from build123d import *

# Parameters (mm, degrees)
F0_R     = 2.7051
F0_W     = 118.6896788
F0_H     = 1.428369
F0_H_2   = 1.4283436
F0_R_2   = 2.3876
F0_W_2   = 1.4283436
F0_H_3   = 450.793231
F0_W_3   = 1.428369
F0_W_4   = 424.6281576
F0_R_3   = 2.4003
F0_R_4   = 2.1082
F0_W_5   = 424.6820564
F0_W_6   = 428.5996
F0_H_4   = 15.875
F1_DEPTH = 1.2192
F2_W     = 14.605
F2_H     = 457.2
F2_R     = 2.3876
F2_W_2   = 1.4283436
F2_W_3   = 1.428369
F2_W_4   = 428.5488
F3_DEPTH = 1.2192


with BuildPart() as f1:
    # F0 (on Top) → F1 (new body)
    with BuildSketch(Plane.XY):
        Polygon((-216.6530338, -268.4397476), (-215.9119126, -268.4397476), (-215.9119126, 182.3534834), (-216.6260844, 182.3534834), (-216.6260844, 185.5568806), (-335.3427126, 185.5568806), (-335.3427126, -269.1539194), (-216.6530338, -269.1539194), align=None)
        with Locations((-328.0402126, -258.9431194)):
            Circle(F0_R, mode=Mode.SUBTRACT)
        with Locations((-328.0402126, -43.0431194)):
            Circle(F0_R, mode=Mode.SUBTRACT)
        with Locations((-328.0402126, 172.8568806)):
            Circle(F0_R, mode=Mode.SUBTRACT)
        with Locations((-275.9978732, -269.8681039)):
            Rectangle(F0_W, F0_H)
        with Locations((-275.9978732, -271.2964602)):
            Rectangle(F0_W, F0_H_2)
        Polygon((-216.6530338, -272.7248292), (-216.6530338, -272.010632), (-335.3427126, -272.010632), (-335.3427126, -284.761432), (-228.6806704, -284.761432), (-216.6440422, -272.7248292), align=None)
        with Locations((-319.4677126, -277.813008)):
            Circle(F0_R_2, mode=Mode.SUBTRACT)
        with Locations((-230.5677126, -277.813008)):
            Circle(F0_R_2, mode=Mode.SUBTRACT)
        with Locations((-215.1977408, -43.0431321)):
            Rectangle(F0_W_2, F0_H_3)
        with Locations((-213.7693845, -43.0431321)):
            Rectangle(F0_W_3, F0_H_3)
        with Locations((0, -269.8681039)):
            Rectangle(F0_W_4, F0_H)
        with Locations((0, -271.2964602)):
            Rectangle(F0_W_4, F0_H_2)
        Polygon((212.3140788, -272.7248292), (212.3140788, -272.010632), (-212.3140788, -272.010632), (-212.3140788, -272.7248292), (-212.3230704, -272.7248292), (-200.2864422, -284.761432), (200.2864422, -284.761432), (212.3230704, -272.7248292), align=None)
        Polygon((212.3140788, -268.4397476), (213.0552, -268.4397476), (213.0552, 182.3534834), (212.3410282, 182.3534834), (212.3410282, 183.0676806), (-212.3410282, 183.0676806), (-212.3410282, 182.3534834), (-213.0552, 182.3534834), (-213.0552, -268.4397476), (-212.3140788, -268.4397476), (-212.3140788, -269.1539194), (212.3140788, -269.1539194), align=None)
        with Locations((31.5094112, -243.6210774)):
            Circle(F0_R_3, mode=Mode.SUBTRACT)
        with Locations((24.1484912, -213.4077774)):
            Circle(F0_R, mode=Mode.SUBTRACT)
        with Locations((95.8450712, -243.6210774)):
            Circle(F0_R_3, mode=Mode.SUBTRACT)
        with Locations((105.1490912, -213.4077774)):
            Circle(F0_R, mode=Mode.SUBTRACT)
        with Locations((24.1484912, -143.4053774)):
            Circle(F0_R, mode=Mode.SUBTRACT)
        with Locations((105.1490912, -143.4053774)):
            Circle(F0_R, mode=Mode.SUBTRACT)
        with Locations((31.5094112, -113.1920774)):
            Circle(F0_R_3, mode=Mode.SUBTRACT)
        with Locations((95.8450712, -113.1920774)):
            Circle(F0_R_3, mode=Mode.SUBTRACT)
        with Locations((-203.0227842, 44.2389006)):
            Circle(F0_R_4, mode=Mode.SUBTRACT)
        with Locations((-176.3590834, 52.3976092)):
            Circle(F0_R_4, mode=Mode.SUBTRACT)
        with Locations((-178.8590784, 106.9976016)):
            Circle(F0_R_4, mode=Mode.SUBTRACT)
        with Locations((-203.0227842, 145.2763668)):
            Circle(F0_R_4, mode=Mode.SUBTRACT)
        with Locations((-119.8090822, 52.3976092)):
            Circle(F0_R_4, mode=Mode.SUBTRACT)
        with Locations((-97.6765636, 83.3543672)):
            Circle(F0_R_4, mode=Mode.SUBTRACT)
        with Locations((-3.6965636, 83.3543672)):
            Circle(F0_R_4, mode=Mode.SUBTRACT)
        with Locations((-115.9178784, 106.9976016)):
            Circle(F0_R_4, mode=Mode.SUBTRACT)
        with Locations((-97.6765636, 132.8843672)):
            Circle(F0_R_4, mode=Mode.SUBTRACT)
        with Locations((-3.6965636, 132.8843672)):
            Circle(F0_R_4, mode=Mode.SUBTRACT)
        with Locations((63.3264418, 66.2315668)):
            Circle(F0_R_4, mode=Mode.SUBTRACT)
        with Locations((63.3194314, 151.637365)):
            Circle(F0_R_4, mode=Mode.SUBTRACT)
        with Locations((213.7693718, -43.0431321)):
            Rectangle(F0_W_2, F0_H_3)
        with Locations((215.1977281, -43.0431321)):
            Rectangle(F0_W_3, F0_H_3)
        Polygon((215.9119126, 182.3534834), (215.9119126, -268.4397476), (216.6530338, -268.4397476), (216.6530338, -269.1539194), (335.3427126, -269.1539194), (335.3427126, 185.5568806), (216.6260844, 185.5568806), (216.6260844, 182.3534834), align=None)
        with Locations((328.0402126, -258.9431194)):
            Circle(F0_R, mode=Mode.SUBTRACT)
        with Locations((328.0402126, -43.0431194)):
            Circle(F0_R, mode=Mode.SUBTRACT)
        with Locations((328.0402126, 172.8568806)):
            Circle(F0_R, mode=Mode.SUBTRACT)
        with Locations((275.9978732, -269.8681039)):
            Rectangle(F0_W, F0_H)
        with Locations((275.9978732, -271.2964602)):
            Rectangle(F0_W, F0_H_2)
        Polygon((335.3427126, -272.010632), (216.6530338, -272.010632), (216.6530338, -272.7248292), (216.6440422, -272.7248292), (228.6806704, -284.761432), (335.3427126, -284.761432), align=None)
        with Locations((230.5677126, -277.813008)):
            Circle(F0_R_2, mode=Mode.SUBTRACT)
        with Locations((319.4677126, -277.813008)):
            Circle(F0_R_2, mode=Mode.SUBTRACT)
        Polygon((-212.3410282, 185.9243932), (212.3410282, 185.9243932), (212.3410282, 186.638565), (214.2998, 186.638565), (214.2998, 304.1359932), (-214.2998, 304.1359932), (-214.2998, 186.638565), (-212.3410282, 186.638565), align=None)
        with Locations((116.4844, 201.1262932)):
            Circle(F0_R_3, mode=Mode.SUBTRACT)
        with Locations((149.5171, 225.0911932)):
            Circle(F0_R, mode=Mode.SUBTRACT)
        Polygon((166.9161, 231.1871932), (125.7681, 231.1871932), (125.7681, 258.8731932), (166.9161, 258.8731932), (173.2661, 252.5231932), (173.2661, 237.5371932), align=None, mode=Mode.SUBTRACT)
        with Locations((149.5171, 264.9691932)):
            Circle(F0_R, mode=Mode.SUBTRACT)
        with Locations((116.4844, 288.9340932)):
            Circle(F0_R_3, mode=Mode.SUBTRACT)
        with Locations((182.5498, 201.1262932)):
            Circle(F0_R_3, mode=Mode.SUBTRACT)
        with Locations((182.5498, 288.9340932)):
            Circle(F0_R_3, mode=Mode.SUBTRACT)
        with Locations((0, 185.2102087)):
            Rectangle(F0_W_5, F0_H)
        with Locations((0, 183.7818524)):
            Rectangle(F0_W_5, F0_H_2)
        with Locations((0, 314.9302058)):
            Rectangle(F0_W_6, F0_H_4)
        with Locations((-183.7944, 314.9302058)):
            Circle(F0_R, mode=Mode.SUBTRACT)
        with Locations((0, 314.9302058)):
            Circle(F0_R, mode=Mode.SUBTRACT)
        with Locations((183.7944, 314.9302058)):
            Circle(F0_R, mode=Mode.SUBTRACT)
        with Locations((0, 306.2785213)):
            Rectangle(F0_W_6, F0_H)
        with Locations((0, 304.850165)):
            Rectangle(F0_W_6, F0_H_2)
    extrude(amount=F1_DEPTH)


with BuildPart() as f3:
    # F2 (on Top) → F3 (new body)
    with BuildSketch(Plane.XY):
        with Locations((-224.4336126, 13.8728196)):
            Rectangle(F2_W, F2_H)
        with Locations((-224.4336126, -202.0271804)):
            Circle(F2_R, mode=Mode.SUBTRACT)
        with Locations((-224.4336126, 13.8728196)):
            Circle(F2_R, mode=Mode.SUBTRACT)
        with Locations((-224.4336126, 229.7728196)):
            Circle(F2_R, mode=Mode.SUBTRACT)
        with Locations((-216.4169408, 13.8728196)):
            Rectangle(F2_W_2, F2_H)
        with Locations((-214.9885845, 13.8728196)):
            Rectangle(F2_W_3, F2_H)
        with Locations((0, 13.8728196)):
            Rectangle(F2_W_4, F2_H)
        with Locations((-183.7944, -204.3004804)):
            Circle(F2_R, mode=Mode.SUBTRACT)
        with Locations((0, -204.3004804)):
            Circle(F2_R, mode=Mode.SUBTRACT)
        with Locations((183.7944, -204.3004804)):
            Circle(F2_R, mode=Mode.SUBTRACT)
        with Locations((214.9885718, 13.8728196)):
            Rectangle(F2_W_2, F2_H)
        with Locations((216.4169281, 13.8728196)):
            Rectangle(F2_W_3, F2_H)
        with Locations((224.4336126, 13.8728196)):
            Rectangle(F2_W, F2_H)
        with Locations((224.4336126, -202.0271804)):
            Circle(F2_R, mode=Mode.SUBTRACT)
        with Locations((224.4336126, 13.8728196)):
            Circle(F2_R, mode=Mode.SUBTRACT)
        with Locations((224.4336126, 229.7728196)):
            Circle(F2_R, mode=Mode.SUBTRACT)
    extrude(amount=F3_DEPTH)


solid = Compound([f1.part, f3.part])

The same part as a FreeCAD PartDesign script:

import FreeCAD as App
import Part
import Sketcher
from FreeCAD import Vector
Q = App.Units.Quantity


def add_polygon(sketch, points):
    """Adds a closed chain of lines whose ends are joined by coincident constraints."""
    first, n = sketch.GeometryCount, len(points)
    for a, b in zip(points, points[1:] + points[:1]):
        sketch.addGeometry(Part.LineSegment(App.Vector(*a, 0), App.Vector(*b, 0)), False)
    for i in range(n):
        sketch.addConstraint(Sketcher.Constraint("Coincident", first + i, 2, first + (i + 1) % n, 1))

doc = App.newDocument("Part")
body = doc.addObject("PartDesign::Body", "Body")

# Sketch on XY plane
sketch1 = body.newObject("Sketcher::SketchObject", "Sketch")
sketch1.AttachmentSupport = (doc.getObject("XY_Plane"), [""])
sketch1.MapMode = "FlatFace"
add_polygon(sketch1, [(-216.653034, -268.439748), (-212.314079, -268.439748), (-212.314079, -272.724829), (-212.32307, -272.724829), (-200.286442, -284.761432), (200.286442, -284.761432), (212.32307, -272.724829), (212.314079, -272.724829), (212.314079, -268.439748), (216.653034, -268.439748), (216.653034, -272.724829), (216.644042, -272.724829), (228.68067, -284.761432), (335.342713, -284.761432), (335.342713, 185.556881), (216.626084, 185.556881), (216.626084, 182.353483), (212.341028, 182.353483), (212.341028, 186.638565), (214.2998, 186.638565), (214.2998, 322.867706), (-214.2998, 322.867706), (-214.2998, 186.638565), (-212.341028, 186.638565), (-212.341028, 182.353483), (-216.626084, 182.353483), (-216.626084, 185.556881), (-335.342713, 185.556881), (-335.342713, -284.761432), (-228.68067, -284.761432), (-216.644042, -272.724829), (-216.653034, -272.724829)])  # lines 0-31
sketch1.addGeometry(Part.Circle(Vector(-319.467713, -277.813008, 0), Vector(0, 0, 1), 2.3876), False)  # 32
sketch1.addGeometry(Part.Circle(Vector(-328.040213, -258.943119, 0), Vector(0, 0, 1), 2.7051), False)  # 33
sketch1.addGeometry(Part.Circle(Vector(-230.567713, -277.813008, 0), Vector(0, 0, 1), 2.3876), False)  # 34
sketch1.addGeometry(Part.Circle(Vector(31.509411, -243.621077, 0), Vector(0, 0, 1), 2.4003), False)  # 35
sketch1.addGeometry(Part.Circle(Vector(95.845071, -243.621077, 0), Vector(0, 0, 1), 2.4003), False)  # 36
sketch1.addGeometry(Part.Circle(Vector(24.148491, -213.407777, 0), Vector(0, 0, 1), 2.7051), False)  # 37
sketch1.addGeometry(Part.Circle(Vector(105.149091, -213.407777, 0), Vector(0, 0, 1), 2.7051), False)  # 38
sketch1.addGeometry(Part.Circle(Vector(230.567713, -277.813008, 0), Vector(0, 0, 1), 2.3876), False)  # 39
sketch1.addGeometry(Part.Circle(Vector(319.467713, -277.813008, 0), Vector(0, 0, 1), 2.3876), False)  # 40
sketch1.addGeometry(Part.Circle(Vector(328.040213, -258.943119, 0), Vector(0, 0, 1), 2.7051), False)  # 41
sketch1.addGeometry(Part.Circle(Vector(24.148491, -143.405377, 0), Vector(0, 0, 1), 2.7051), False)  # 42
sketch1.addGeometry(Part.Circle(Vector(31.509411, -113.192077, 0), Vector(0, 0, 1), 2.4003), False)  # 43
sketch1.addGeometry(Part.Circle(Vector(105.149091, -143.405377, 0), Vector(0, 0, 1), 2.7051), False)  # 44
sketch1.addGeometry(Part.Circle(Vector(95.845071, -113.192077, 0), Vector(0, 0, 1), 2.4003), False)  # 45
sketch1.addGeometry(Part.Circle(Vector(-328.040213, -43.043119, 0), Vector(0, 0, 1), 2.7051), False)  # 46
sketch1.addGeometry(Part.Circle(Vector(-203.022784, 44.238901, 0), Vector(0, 0, 1), 2.1082), False)  # 47
sketch1.addGeometry(Part.Circle(Vector(-176.359083, 52.397609, 0), Vector(0, 0, 1), 2.1082), False)  # 48
sketch1.addGeometry(Part.Circle(Vector(-119.809082, 52.397609, 0), Vector(0, 0, 1), 2.1082), False)  # 49
sketch1.addGeometry(Part.Circle(Vector(-178.859078, 106.997602, 0), Vector(0, 0, 1), 2.1082), False)  # 50
sketch1.addGeometry(Part.Circle(Vector(-328.040213, 172.856881, 0), Vector(0, 0, 1), 2.7051), False)  # 51
sketch1.addGeometry(Part.Circle(Vector(-203.022784, 145.276367, 0), Vector(0, 0, 1), 2.1082), False)  # 52
sketch1.addGeometry(Part.Circle(Vector(-97.676564, 83.354367, 0), Vector(0, 0, 1), 2.1082), False)  # 53
sketch1.addGeometry(Part.Circle(Vector(-115.917878, 106.997602, 0), Vector(0, 0, 1), 2.1082), False)  # 54
sketch1.addGeometry(Part.Circle(Vector(-3.696564, 83.354367, 0), Vector(0, 0, 1), 2.1082), False)  # 55
sketch1.addGeometry(Part.Circle(Vector(-97.676564, 132.884367, 0), Vector(0, 0, 1), 2.1082), False)  # 56
sketch1.addGeometry(Part.Circle(Vector(-3.696564, 132.884367, 0), Vector(0, 0, 1), 2.1082), False)  # 57
sketch1.addGeometry(Part.Circle(Vector(328.040213, -43.043119, 0), Vector(0, 0, 1), 2.7051), False)  # 58
sketch1.addGeometry(Part.Circle(Vector(63.326442, 66.231567, 0), Vector(0, 0, 1), 2.1082), False)  # 59
sketch1.addGeometry(Part.Circle(Vector(63.319431, 151.637365, 0), Vector(0, 0, 1), 2.1082), False)  # 60
sketch1.addGeometry(Part.Circle(Vector(328.040213, 172.856881, 0), Vector(0, 0, 1), 2.7051), False)  # 61
sketch1.addGeometry(Part.Circle(Vector(182.5498, 288.934093, 0), Vector(0, 0, 1), 2.4003), False)  # 62
sketch1.addGeometry(Part.Circle(Vector(116.4844, 201.126293, 0), Vector(0, 0, 1), 2.4003), False)  # 63
sketch1.addGeometry(Part.Circle(Vector(182.5498, 201.126293, 0), Vector(0, 0, 1), 2.4003), False)  # 64
sketch1.addGeometry(Part.Circle(Vector(149.5171, 225.091193, 0), Vector(0, 0, 1), 2.7051), False)  # 65
sketch1.addGeometry(Part.Circle(Vector(116.4844, 288.934093, 0), Vector(0, 0, 1), 2.4003), False)  # 66
add_polygon(sketch1, [(173.2661, 237.537193), (166.9161, 231.187193), (125.7681, 231.187193), (125.7681, 258.873193), (166.9161, 258.873193), (173.2661, 252.523193)])  # lines 67-72
sketch1.addGeometry(Part.Circle(Vector(149.5171, 264.969193, 0), Vector(0, 0, 1), 2.7051), False)  # 73
sketch1.addGeometry(Part.Circle(Vector(183.7944, 314.930206, 0), Vector(0, 0, 1), 2.7051), False)  # 74
sketch1.addGeometry(Part.Circle(Vector(-183.7944, 314.930206, 0), Vector(0, 0, 1), 2.7051), False)  # 75
sketch1.addGeometry(Part.Circle(Vector(0, 314.930206, 0), Vector(0, 0, 1), 2.7051), False)  # 76
sketch1.addConstraint([
    Sketcher.Constraint("Horizontal", 0),
    Sketcher.Constraint("Vertical", 1),
    Sketcher.Constraint("Horizontal", 2),
    Sketcher.Constraint("Horizontal", 4),
    Sketcher.Constraint("Horizontal", 6),
    Sketcher.Constraint("Vertical", 7),
    Sketcher.Constraint("Horizontal", 8),
    Sketcher.Constraint("Vertical", 9),
    Sketcher.Constraint("Horizontal", 10),
    Sketcher.Constraint("Horizontal", 12),
    Sketcher.Constraint("Vertical", 13),
    Sketcher.Constraint("Horizontal", 14),
    Sketcher.Constraint("Vertical", 15),
    Sketcher.Constraint("Horizontal", 16),
    Sketcher.Constraint("Vertical", 17),
    Sketcher.Constraint("Horizontal", 18),
    Sketcher.Constraint("Vertical", 19),
    Sketcher.Constraint("Horizontal", 20),
    Sketcher.Constraint("Vertical", 21),
    Sketcher.Constraint("Horizontal", 22),
    Sketcher.Constraint("Vertical", 23),
    Sketcher.Constraint("Horizontal", 24),
    Sketcher.Constraint("Vertical", 25),
    Sketcher.Constraint("Horizontal", 26),
    Sketcher.Constraint("Vertical", 27),
    Sketcher.Constraint("Horizontal", 28),
    Sketcher.Constraint("Horizontal", 30),
    Sketcher.Constraint("Vertical", 31),
    Sketcher.Constraint("Horizontal", 68),
    Sketcher.Constraint("Vertical", 69),
    Sketcher.Constraint("Horizontal", 70),
    Sketcher.Constraint("Vertical", 72),
    Sketcher.Constraint("Equal", 32, 34),
    Sketcher.Constraint("Equal", 35, 36),
    Sketcher.Constraint("Equal", 33, 37),
    Sketcher.Constraint("Equal", 37, 38),
    Sketcher.Constraint("Equal", 34, 39),
    Sketcher.Constraint("Equal", 39, 40),
    Sketcher.Constraint("Equal", 38, 41),
    Sketcher.Constraint("Equal", 41, 42),
    Sketcher.Constraint("Equal", 36, 43),
    Sketcher.Constraint("Equal", 42, 44),
    Sketcher.Constraint("Equal", 43, 45),
    Sketcher.Constraint("Equal", 44, 46),
    Sketcher.Constraint("Equal", 47, 48),
    Sketcher.Constraint("Equal", 48, 49),
    Sketcher.Constraint("Equal", 49, 50),
    Sketcher.Constraint("Equal", 46, 51),
    Sketcher.Constraint("Equal", 50, 52),
    Sketcher.Constraint("Equal", 52, 53),
    Sketcher.Constraint("Equal", 53, 54),
    Sketcher.Constraint("Equal", 54, 55),
    Sketcher.Constraint("Equal", 55, 56),
    Sketcher.Constraint("Equal", 56, 57),
    Sketcher.Constraint("Equal", 51, 58),
    Sketcher.Constraint("Equal", 57, 59),
    Sketcher.Constraint("Equal", 59, 60),
    Sketcher.Constraint("Equal", 58, 61),
    Sketcher.Constraint("Equal", 45, 62),
    Sketcher.Constraint("Equal", 62, 63),
    Sketcher.Constraint("Equal", 63, 64),
    Sketcher.Constraint("Equal", 61, 65),
    Sketcher.Constraint("Equal", 64, 66),
    Sketcher.Constraint("Equal", 65, 73),
    Sketcher.Constraint("Equal", 73, 74),
    Sketcher.Constraint("Equal", 74, 75),
    Sketcher.Constraint("Equal", 75, 76),
    Sketcher.Constraint("Symmetric", 34, 3, 39, 3, -2),
    Sketcher.Constraint("Symmetric", 32, 3, 40, 3, -2),
    Sketcher.Constraint("Symmetric", 33, 3, 41, 3, -2),
    Sketcher.Constraint("Symmetric", 46, 3, 58, 3, -2),
    Sketcher.Constraint("Symmetric", 51, 3, 61, 3, -2),
    Sketcher.Constraint("Symmetric", 74, 3, 75, 3, -2),
    Sketcher.Constraint("Symmetric", 2, 2, 5, 2, -2),
    Sketcher.Constraint("Symmetric", 0, 2, 7, 2, -2),
    Sketcher.Constraint("Symmetric", 18, 2, 21, 2, -2),
    Sketcher.Constraint("Symmetric", 16, 2, 23, 2, -2),
    Sketcher.Constraint("Symmetric", 14, 2, 25, 2, -2),
    Sketcher.Constraint("Symmetric", 12, 2, 27, 2, -2),
    Sketcher.Constraint("Symmetric", 10, 2, 29, 2, -2),
    Sketcher.Constraint("PointOnObject", 76, 3, -2),
    Sketcher.Constraint("Parallel", 3, 11),
    Sketcher.Constraint("Parallel", 5, 29),
    Sketcher.Constraint("Parallel", 29, 67),
    Sketcher.Constraint("Perpendicular", 67, 71),
    Sketcher.Constraint("Horizontal", 32, 3, 34, 3),
    Sketcher.Constraint("Horizontal", 35, 3, 36, 3),
    Sketcher.Constraint("Horizontal", 37, 3, 38, 3),
    Sketcher.Constraint("Horizontal", 42, 3, 44, 3),
    Sketcher.Constraint("Horizontal", 43, 3, 45, 3),
    Sketcher.Constraint("Horizontal", 48, 3, 49, 3),
    Sketcher.Constraint("Horizontal", 50, 3, 54, 3),
    Sketcher.Constraint("Horizontal", 53, 3, 55, 3),
    Sketcher.Constraint("Horizontal", 56, 3, 57, 3),
    Sketcher.Constraint("Horizontal", 63, 3, 64, 3),
    Sketcher.Constraint("Horizontal", 62, 3, 66, 3),
    Sketcher.Constraint("Horizontal", 75, 3, 76, 3),
    Sketcher.Constraint("Horizontal", 6, 2, 9, 2),
    Sketcher.Constraint("Horizontal", 4, 2, 11, 2),
    Sketcher.Constraint("Vertical", 37, 3, 42, 3),
    Sketcher.Constraint("Vertical", 35, 3, 43, 3),
    Sketcher.Constraint("Vertical", 38, 3, 44, 3),
    Sketcher.Constraint("Vertical", 36, 3, 45, 3),
    Sketcher.Constraint("Vertical", 33, 3, 46, 3),
    Sketcher.Constraint("Vertical", 46, 3, 51, 3),
    Sketcher.Constraint("Vertical", 47, 3, 52, 3),
    Sketcher.Constraint("Vertical", 53, 3, 56, 3),
    Sketcher.Constraint("Vertical", 55, 3, 57, 3),
    Sketcher.Constraint("Vertical", 62, 3, 64, 3),
    Sketcher.Constraint("Vertical", 63, 3, 66, 3),
    Sketcher.Constraint("Vertical", 65, 3, 73, 3),
    Sketcher.Constraint("Vertical", 67, 2, 70, 2),
    Sketcher.Constraint("Equal", 0, 8),
    Sketcher.Constraint("Equal", 6, 10),
    Sketcher.Constraint("Equal", 12, 28),
    Sketcher.Constraint("Equal", 9, 17),
    Sketcher.Constraint("Equal", 67, 71),
    Sketcher.Constraint("Diameter", 32, Q("0.188 in")),
    Sketcher.Constraint("Diameter", 33, Q("0.213 in")),
    Sketcher.Constraint("Diameter", 35, Q("0.189 in")),
    Sketcher.Constraint("Diameter", 47, Q("0.166 in")),
    Sketcher.Constraint("DistanceX", 68, 2, 68, 1, Q("1.62 in")),
    Sketcher.Constraint("DistanceY", 69, 1, 69, 2, Q("1.09 in")),
    Sketcher.Constraint("DistanceY", 72, 2, 72, 1, Q("0.59 in")),
    Sketcher.Constraint("DistanceX", 20, 2, 20, 1, Q("16.874 in")),
    Sketcher.Constraint("DistanceX", -1, 1, 62, 3, Q("7.187 in")),
    Sketcher.Constraint("DistanceX", -1, 1, 63, 3, Q("4.586 in")),
    Sketcher.Constraint("DistanceX", -1, 1, 74, 3, Q("7.236 in")),
    Sketcher.Constraint("DistanceX", -1, 1, 65, 3, Q("5.8865 in")),
    Sketcher.Constraint("DistanceX", -1, 1, 67, 2, Q("6.5715 in")),
    Sketcher.Constraint("DistanceX", 2, 2, 2, 1, 0.008992),
    Sketcher.Constraint("DistanceX", 14, 2, 14, 1, 118.716628),
    Sketcher.Constraint("DistanceX", 18, 1, 18, 2, 1.958772),
    Sketcher.Constraint("DistanceY", 1, 2, 1, 1, 4.285082),
    Sketcher.Constraint("DistanceY", 19, 1, 19, 2, 136.229141),
    Sketcher.Constraint("DistanceY", -1, 1, 47, 3, 44.238901),
    Sketcher.Constraint("DistanceY", -1, 1, 50, 3, 106.997602),
    Sketcher.Constraint("DistanceX", 0, 1, 0, 2, 4.338955),
    Sketcher.Constraint("DistanceX", 4, 1, 4, 2, 400.572884),
    Sketcher.Constraint("DistanceX", 12, 1, 12, 2, 106.662042),
    Sketcher.Constraint("DistanceX", 16, 2, 16, 1, 4.285056),
    Sketcher.Constraint("DistanceY", 13, 1, 13, 2, 470.318313),
    Sketcher.Constraint("DistanceY", 15, 2, 15, 1, 3.203397),
    Sketcher.Constraint("DistanceY", 32, 3, -1, 1, 277.813008),
    Sketcher.Constraint("DistanceY", 33, 3, -1, 1, 258.943119),
    Sketcher.Constraint("DistanceX", -1, 1, 35, 3, 31.509411),
    Sketcher.Constraint("DistanceX", -1, 1, 36, 3, 95.845071),
    Sketcher.Constraint("DistanceX", -1, 1, 37, 3, 24.148491),
    Sketcher.Constraint("DistanceX", -1, 1, 38, 3, 105.149091),
    Sketcher.Constraint("DistanceY", 46, 3, -1, 1, 43.043119),
    Sketcher.Constraint("DistanceY", -1, 1, 48, 3, 52.397609),
    Sketcher.Constraint("DistanceX", 50, 3, -1, 1, 178.859078),
    Sketcher.Constraint("DistanceY", -1, 1, 51, 3, 172.856881),
    Sketcher.Constraint("DistanceX", 54, 3, -1, 1, 115.917878),
    Sketcher.Constraint("DistanceX", -1, 1, 59, 3, 63.326442),
    Sketcher.Constraint("DistanceX", -1, 1, 60, 3, 63.319431),
    Sketcher.Constraint("DistanceY", 1, 2, -1, 1, 272.724829),
    Sketcher.Constraint("DistanceX", 32, 3, -1, 1, 319.467713),
    Sketcher.Constraint("DistanceX", 33, 3, -1, 1, 328.040213),
    Sketcher.Constraint("DistanceX", 34, 3, -1, 1, 230.567713),
    Sketcher.Constraint("DistanceY", 35, 3, -1, 1, 243.621077),
    Sketcher.Constraint("DistanceY", 37, 3, -1, 1, 213.407777),
    Sketcher.Constraint("DistanceY", 42, 3, -1, 1, 143.405377),
    Sketcher.Constraint("DistanceY", 43, 3, -1, 1, 113.192077),
    Sketcher.Constraint("DistanceX", 47, 3, -1, 1, 203.022784),
    Sketcher.Constraint("DistanceX", 48, 3, -1, 1, 176.359083),
    Sketcher.Constraint("DistanceX", 49, 3, -1, 1, 119.809082),
    Sketcher.Constraint("DistanceY", -1, 1, 52, 3, 145.276367),
    Sketcher.Constraint("DistanceX", 53, 3, -1, 1, 97.676564),
    Sketcher.Constraint("DistanceY", -1, 1, 53, 3, 83.354367),
    Sketcher.Constraint("DistanceX", 55, 3, -1, 1, 3.696564),
    Sketcher.Constraint("DistanceY", -1, 1, 56, 3, 132.884367),
    Sketcher.Constraint("DistanceY", -1, 1, 59, 3, 66.231567),
    Sketcher.Constraint("DistanceY", -1, 1, 60, 3, 151.637365),
    Sketcher.Constraint("DistanceY", -1, 1, 62, 3, 288.934093),
    Sketcher.Constraint("DistanceY", -1, 1, 63, 3, 201.126293),
    Sketcher.Constraint("DistanceY", -1, 1, 65, 3, 225.091193),
    Sketcher.Constraint("DistanceY", -1, 1, 73, 3, 264.969193),
    Sketcher.Constraint("DistanceY", -1, 1, 74, 3, 314.930206),
    Sketcher.Constraint("DistanceY", -1, 1, 67, 2, 231.187193),
])
pad1 = body.newObject("PartDesign::Pad", "Pad")
pad1.Profile = sketch1
pad1.Length = Q("0.048 in")
body2 = doc.addObject("PartDesign::Body", "Body001")

# Sketch on XY plane
sketch2 = body2.newObject("Sketcher::SketchObject", "Sketch001")
sketch2.AttachmentSupport = (doc.getObject("XY_Plane001"), [""])
sketch2.MapMode = "FlatFace"
add_polygon(sketch2, [(-231.7, 242.5), (-231.7, -214.7), (231.7, -214.7), (231.7, 242.5)])  # lines 0-3
sketch2.addGeometry(Part.Circle(Vector(-224.4, -202, 0), Vector(0, 0, 1), 2.4), False)  # 4
sketch2.addGeometry(Part.Circle(Vector(-183.8, -204.3, 0), Vector(0, 0, 1), 2.4), False)  # 5
sketch2.addGeometry(Part.Circle(Vector(0, -204.3, 0), Vector(0, 0, 1), 2.4), False)  # 6
sketch2.addGeometry(Part.Circle(Vector(183.8, -204.3, 0), Vector(0, 0, 1), 2.4), False)  # 7
sketch2.addGeometry(Part.Circle(Vector(224.4, -202, 0), Vector(0, 0, 1), 2.4), False)  # 8
sketch2.addGeometry(Part.Circle(Vector(-224.4, 13.9, 0), Vector(0, 0, 1), 2.4), False)  # 9
sketch2.addGeometry(Part.Circle(Vector(-224.4, 229.8, 0), Vector(0, 0, 1), 2.4), False)  # 10
sketch2.addGeometry(Part.Circle(Vector(224.4, 13.9, 0), Vector(0, 0, 1), 2.4), False)  # 11
sketch2.addGeometry(Part.Circle(Vector(224.4, 229.8, 0), Vector(0, 0, 1), 2.4), False)  # 12
sketch2.addConstraint([
    Sketcher.Constraint("Vertical", 0),
    Sketcher.Constraint("Horizontal", 1),
    Sketcher.Constraint("Vertical", 2),
    Sketcher.Constraint("Horizontal", 3),
    Sketcher.Constraint("Equal", 4, 5),
    Sketcher.Constraint("Equal", 5, 6),
    Sketcher.Constraint("Equal", 6, 7),
    Sketcher.Constraint("Equal", 7, 8),
    Sketcher.Constraint("Equal", 8, 9),
    Sketcher.Constraint("Equal", 9, 10),
    Sketcher.Constraint("Equal", 10, 11),
    Sketcher.Constraint("Equal", 11, 12),
    Sketcher.Constraint("Symmetric", 5, 3, 7, 3, -2),
    Sketcher.Constraint("Symmetric", 4, 3, 8, 3, -2),
    Sketcher.Constraint("Symmetric", 9, 3, 11, 3, -2),
    Sketcher.Constraint("Symmetric", 10, 3, 12, 3, -2),
    Sketcher.Constraint("PointOnObject", 6, 3, -2),
    Sketcher.Constraint("Horizontal", 5, 3, 6, 3),
    Sketcher.Constraint("Vertical", 4, 3, 9, 3),
    Sketcher.Constraint("Vertical", 9, 3, 10, 3),
    Sketcher.Constraint("DistanceY", 0, 2, 0, 1, Q("18 in")),
    Sketcher.Constraint("Diameter", 4, Q("0.188 in")),
    Sketcher.Constraint("DistanceY", 4, 3, 10, 3, Q("17 in")),
    Sketcher.Constraint("DistanceY", 0, 2, 9, 3, Q("9 in")),
    Sketcher.Constraint("DistanceY", 4, 3, 9, 3, Q("8.5 in")),
    Sketcher.Constraint("DistanceX", 5, 3, -1, 1, Q("7.236 in")),
    Sketcher.Constraint("DistanceY", 5, 3, 4, 3, Q("0.0895 in")),
    Sketcher.Constraint("DistanceX", 0, 2, 4, 3, Q("0.2875 in")),
    Sketcher.Constraint("DistanceX", 8, 3, 1, 2, Q("0.2875 in")),
    Sketcher.Constraint("DistanceX", 1, 1, 1, 2, 463.472225),
    Sketcher.Constraint("DistanceY", 4, 3, -1, 1, 202.02718),
])
pad2 = body2.newObject("PartDesign::Pad", "Pad001")
pad2.Profile = sketch2
pad2.Length = Q("0.048 in")

doc.recompute()
